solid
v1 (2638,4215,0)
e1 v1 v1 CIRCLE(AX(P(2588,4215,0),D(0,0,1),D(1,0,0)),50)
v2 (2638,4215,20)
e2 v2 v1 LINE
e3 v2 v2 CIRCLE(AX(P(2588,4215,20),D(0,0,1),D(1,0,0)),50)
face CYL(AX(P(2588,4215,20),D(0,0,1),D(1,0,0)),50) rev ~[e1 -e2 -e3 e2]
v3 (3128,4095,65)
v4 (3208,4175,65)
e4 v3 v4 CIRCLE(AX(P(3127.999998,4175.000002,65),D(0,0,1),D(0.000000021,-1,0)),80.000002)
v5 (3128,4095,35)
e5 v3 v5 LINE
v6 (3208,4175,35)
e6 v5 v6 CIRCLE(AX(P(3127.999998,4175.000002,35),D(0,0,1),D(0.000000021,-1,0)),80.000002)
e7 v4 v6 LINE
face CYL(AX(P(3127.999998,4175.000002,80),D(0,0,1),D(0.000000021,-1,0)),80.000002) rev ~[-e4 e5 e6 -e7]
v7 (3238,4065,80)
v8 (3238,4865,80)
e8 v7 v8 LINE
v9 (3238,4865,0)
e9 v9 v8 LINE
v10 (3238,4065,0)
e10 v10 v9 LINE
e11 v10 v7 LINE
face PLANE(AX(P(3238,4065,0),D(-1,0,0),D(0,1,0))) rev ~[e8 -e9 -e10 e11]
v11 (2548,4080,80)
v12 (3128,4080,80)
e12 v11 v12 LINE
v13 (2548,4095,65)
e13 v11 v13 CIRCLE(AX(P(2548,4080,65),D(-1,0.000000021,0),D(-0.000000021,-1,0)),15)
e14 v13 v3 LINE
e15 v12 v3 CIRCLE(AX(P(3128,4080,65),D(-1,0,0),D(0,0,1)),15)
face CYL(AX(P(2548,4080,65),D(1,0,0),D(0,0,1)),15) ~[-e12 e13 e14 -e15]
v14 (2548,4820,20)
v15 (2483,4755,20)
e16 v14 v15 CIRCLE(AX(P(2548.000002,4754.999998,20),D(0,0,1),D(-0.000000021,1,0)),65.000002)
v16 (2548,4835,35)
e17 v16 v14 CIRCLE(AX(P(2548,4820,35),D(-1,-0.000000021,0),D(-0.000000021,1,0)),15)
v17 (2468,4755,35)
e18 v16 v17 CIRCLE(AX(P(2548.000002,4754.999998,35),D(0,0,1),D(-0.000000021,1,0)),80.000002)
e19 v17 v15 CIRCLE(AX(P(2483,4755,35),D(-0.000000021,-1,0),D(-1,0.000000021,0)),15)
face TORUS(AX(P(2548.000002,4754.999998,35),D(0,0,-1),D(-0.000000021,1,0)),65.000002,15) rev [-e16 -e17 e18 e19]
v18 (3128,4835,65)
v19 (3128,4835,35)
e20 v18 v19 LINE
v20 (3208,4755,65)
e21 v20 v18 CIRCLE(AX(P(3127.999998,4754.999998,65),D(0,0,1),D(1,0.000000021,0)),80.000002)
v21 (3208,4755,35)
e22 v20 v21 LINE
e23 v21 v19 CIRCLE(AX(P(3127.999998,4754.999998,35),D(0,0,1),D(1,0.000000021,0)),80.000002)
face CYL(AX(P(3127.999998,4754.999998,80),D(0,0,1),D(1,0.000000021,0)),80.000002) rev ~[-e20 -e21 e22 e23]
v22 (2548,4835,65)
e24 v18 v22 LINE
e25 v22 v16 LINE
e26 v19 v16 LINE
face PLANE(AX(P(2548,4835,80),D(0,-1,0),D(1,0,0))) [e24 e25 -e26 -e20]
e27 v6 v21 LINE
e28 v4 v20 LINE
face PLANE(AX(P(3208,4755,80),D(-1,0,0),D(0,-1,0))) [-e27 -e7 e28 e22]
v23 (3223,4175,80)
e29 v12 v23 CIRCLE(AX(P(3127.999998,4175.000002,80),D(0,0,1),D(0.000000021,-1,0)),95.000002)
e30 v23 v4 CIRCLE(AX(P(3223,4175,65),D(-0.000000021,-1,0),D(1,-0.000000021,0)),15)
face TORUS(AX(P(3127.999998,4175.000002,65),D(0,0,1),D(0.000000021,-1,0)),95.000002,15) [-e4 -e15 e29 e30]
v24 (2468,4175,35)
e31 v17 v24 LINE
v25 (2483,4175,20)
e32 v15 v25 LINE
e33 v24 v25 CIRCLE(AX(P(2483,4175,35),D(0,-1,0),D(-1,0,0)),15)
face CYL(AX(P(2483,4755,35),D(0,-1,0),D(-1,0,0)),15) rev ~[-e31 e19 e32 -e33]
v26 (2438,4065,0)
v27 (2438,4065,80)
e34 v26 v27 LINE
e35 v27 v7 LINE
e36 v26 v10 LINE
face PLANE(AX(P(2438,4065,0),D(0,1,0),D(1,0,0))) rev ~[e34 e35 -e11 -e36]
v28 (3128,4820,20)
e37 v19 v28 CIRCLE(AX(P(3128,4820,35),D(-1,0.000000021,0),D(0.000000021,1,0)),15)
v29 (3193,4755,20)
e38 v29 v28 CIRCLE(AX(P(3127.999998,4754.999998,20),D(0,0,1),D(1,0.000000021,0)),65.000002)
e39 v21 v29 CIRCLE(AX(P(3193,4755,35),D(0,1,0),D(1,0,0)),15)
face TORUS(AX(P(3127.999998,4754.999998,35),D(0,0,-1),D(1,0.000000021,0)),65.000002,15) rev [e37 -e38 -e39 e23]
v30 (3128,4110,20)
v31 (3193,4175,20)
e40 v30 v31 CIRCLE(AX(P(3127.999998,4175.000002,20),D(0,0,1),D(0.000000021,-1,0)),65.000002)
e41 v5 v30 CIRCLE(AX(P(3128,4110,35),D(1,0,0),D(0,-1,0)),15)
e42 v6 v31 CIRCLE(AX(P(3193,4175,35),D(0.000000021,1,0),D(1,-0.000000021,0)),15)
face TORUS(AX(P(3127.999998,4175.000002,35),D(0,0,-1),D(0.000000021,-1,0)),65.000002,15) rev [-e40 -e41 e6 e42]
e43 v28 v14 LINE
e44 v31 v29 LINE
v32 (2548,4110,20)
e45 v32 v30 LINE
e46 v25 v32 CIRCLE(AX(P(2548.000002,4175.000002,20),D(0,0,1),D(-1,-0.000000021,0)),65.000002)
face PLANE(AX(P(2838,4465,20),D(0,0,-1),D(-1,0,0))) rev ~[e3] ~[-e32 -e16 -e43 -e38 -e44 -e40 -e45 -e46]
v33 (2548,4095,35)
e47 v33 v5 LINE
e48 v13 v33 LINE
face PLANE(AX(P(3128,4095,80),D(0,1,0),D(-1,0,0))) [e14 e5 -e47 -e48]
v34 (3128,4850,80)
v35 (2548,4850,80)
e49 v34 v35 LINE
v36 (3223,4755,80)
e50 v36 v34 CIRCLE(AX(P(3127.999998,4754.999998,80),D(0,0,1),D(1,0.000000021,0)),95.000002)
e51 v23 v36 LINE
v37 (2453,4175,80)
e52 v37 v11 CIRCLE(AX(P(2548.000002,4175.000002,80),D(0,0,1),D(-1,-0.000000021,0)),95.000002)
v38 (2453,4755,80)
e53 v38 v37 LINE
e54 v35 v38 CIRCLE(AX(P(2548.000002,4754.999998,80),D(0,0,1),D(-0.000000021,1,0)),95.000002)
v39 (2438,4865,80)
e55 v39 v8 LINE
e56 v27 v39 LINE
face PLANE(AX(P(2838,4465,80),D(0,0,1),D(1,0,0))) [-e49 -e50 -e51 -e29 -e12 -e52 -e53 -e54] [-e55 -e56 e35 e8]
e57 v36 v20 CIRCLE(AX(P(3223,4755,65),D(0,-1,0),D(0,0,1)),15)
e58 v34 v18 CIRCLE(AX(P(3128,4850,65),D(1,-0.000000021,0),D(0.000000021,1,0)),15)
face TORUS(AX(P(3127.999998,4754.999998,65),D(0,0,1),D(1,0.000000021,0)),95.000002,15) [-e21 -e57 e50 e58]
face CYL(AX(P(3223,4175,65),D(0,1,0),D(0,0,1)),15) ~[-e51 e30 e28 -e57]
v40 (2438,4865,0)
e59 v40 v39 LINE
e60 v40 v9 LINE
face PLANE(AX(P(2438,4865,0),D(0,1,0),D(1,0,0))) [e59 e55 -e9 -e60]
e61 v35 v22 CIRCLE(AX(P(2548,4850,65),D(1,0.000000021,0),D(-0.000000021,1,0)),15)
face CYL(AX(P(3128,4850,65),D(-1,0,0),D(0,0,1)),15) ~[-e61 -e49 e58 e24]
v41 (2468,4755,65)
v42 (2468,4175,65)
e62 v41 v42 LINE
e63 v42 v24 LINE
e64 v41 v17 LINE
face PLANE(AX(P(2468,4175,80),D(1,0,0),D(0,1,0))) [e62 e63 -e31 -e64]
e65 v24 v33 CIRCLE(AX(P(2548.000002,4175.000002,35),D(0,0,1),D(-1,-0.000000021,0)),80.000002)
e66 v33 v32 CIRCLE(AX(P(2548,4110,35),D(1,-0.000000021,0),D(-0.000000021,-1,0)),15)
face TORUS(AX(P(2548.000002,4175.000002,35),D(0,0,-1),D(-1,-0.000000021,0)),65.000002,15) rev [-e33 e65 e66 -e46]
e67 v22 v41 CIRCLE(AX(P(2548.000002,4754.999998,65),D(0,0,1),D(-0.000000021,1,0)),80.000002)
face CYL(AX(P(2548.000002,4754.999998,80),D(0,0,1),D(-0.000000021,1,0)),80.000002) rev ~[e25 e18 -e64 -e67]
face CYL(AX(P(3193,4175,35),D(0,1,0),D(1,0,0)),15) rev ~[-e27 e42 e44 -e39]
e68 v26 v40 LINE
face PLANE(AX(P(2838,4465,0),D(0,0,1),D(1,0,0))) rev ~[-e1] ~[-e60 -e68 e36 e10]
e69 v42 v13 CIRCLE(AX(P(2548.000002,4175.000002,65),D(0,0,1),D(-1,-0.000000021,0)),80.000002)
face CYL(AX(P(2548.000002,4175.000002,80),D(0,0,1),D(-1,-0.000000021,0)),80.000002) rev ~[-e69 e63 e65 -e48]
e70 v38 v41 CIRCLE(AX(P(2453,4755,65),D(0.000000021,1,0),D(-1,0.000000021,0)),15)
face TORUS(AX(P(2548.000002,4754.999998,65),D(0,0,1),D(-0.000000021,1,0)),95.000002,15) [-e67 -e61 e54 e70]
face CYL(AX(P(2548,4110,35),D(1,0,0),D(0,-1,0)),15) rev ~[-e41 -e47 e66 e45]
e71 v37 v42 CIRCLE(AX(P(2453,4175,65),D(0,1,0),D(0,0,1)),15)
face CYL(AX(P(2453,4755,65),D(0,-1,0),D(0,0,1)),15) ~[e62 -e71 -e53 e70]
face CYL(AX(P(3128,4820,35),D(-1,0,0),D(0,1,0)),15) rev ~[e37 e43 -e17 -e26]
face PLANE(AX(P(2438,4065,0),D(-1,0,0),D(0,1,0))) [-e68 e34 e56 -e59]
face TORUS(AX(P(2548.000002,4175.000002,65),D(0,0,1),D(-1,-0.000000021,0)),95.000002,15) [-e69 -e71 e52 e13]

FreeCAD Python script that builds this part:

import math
import FreeCAD as App
import Part
import Sketcher

V = App.Vector
Q = App.Units.Quantity


def edges_at(feature, points):
    """Names of the edges that pass closest to the given points."""
    edges = feature.Shape.Edges
    near = lambda p: min(range(len(edges)), key=lambda i: edges[i].distToShape(Part.Vertex(*p))[0])
    return sorted({f"Edge{near(p) + 1}" for p in points})


def add_polygon(sketch, points):
    """Adds a closed chain of lines whose ends are joined by coincident constraints."""
    first, n = sketch.GeometryCount, len(points)
    for a, b in zip(points, points[1:] + points[:1]):
        sketch.addGeometry(Part.LineSegment(App.Vector(*a, 0), App.Vector(*b, 0)), False)
    for i in range(n):
        sketch.addConstraint(Sketcher.Constraint("Coincident", first + i, 2, first + (i + 1) % n, 1))

doc = App.newDocument("Part")
body = doc.addObject("PartDesign::Body", "Body")

# Sketch on XY plane
sketch1 = body.newObject("Sketcher::SketchObject", "Sketch")
sketch1.AttachmentSupport = (doc.getObject("XY_Plane"), [""])
sketch1.MapMode = "FlatFace"
add_polygon(sketch1, [(0, 800), (0, 0), (800, 0), (800, 800)])  # lines 0-3
sketch1.addConstraint([
    Sketcher.Constraint("Vertical", 0),
    Sketcher.Constraint("Horizontal", 1),
    Sketcher.Constraint("Vertical", 2),
    Sketcher.Constraint("Horizontal", 3),
    Sketcher.Constraint("Coincident", 0, 2, -1, 1),
    Sketcher.Constraint("Equal", 3, 0),
    Sketcher.Constraint("DistanceX", 1, 1, 1, 2, Q("800 mm")),
])
pad1 = body.newObject("PartDesign::Pad", "Pad")
pad1.Profile = sketch1
pad1.Length = 80

# Sketch on XY plane
sketch2 = body.newObject("Sketcher::SketchObject", "Sketch001")
sketch2.AttachmentSupport = (doc.getObject("XY_Plane"), [""])
sketch2.MapMode = "FlatFace"
sketch2.AttachmentOffset = App.Placement(V(0, 0, 80), App.Rotation())
sketch2.addGeometry([
    Part.LineSegment(V(30, 690, 0), V(30, 110, 0)),  # 0
    Part.ArcOfCircle(Part.Circle(V(110, 110, 0), V(0, 0, 1), 80), math.radians(-180), math.radians(-90)),  # 1
    Part.LineSegment(V(110, 30, 0), V(690, 30, 0)),  # 2
    Part.ArcOfCircle(Part.Circle(V(690, 110, 0), V(0, 0, 1), 80), math.radians(-90), math.radians(0)),  # 3
    Part.LineSegment(V(770, 110, 0), V(770, 690, 0)),  # 4
    Part.ArcOfCircle(Part.Circle(V(690, 690, 0), V(0, 0, 1), 80), math.radians(0), math.radians(90)),  # 5
    Part.LineSegment(V(690, 770, 0), V(110, 770, 0)),  # 6
    Part.ArcOfCircle(Part.Circle(V(110, 690, 0), V(0, 0, 1), 80), math.radians(90), math.radians(180)),  # 7
], False)
sketch2.addConstraint([
    Sketcher.Constraint("Tangent", 0, 2, 1, 1),
    Sketcher.Constraint("Tangent", 1, 2, 2, 1),
    Sketcher.Constraint("Tangent", 2, 2, 3, 1),
    Sketcher.Constraint("Tangent", 3, 2, 4, 1),
    Sketcher.Constraint("Tangent", 4, 2, 5, 1),
    Sketcher.Constraint("Tangent", 5, 2, 6, 1),
    Sketcher.Constraint("Tangent", 6, 2, 7, 1),
    Sketcher.Constraint("Tangent", 7, 2, 0, 1),
    Sketcher.Constraint("Vertical", 0),
    Sketcher.Constraint("Horizontal", 2),
    Sketcher.Constraint("Vertical", 4),
    Sketcher.Constraint("Horizontal", 6),
    Sketcher.Constraint("Equal", 1, 3),
    Sketcher.Constraint("Equal", 3, 5),
    Sketcher.Constraint("Equal", 5, 7),
    Sketcher.Constraint("Equal", 6, 0),
    Sketcher.Constraint("Radius", 1, Q("80.000002 mm")),
    Sketcher.Constraint("DistanceX", 2, 1, 2, 2, Q("580 mm")),
    Sketcher.Constraint("DistanceX", -1, 1, 1, 3, Q("110.000002 mm")),
    Sketcher.Constraint("DistanceY", -1, 1, 1, 3, Q("110.000002 mm")),
])
pocket1 = body.newObject("PartDesign::Pocket", "Pocket")
pocket1.Profile = sketch2
pocket1.Length = 60

# Sketch on XY plane
sketch3 = body.newObject("Sketcher::SketchObject", "Sketch002")
sketch3.AttachmentSupport = (doc.getObject("XY_Plane"), [""])
sketch3.MapMode = "FlatFace"
sketch3.AttachmentOffset = App.Placement(V(0, 0, 20), App.Rotation())
sketch3.addGeometry(Part.Circle(V(150, 150, 0), V(0, 0, 1), 50), False)
sketch3.addConstraint([
    Sketcher.Constraint("Diameter", 0, Q("100 mm")),
    Sketcher.Constraint("DistanceX", -1, 1, 0, 3, Q("150 mm")),
    Sketcher.Constraint("DistanceY", -1, 1, 0, 3, Q("150 mm")),
])
pocket2 = body.newObject("PartDesign::Pocket", "Pocket001")
pocket2.Profile = sketch3
pocket2.Length = 20
doc.recompute()

fillet = body.newObject("PartDesign::Fillet", "Fillet")
fillet.Base = (pocket2, edges_at(pocket2, [
    (53.431, 746.569, 20),
    (30, 400, 20),
    (53.431, 53.431, 20),
    (400, 30, 20),
    (746.569, 53.431, 20),
    (770, 400, 20),
    (746.569, 746.569, 20),
    (400, 770, 20),
]))
fillet.Radius = 15
doc.recompute()

fillet2 = body.newObject("PartDesign::Fillet", "Fillet001")
fillet2.Base = (fillet, edges_at(fillet, [
    (53.431, 746.569, 80),
    (30, 400, 80),
    (53.431, 53.431, 80),
    (746.569, 53.431, 80),
    (770, 400, 80),
    (746.569, 746.569, 80),
    (400, 770, 80),
]))
fillet2.Radius = 15
body2 = doc.addObject("PartDesign::Body", "Body001")
doc.recompute()

body.Placement = App.Placement(V(2438, 4065, 0), App.Rotation(V(0, 0, 1), 0))
boolean = body2.newObject("PartDesign::Boolean", "Boolean")
boolean.Type = "Fuse"
boolean.addObjects([body])

doc.recompute()
